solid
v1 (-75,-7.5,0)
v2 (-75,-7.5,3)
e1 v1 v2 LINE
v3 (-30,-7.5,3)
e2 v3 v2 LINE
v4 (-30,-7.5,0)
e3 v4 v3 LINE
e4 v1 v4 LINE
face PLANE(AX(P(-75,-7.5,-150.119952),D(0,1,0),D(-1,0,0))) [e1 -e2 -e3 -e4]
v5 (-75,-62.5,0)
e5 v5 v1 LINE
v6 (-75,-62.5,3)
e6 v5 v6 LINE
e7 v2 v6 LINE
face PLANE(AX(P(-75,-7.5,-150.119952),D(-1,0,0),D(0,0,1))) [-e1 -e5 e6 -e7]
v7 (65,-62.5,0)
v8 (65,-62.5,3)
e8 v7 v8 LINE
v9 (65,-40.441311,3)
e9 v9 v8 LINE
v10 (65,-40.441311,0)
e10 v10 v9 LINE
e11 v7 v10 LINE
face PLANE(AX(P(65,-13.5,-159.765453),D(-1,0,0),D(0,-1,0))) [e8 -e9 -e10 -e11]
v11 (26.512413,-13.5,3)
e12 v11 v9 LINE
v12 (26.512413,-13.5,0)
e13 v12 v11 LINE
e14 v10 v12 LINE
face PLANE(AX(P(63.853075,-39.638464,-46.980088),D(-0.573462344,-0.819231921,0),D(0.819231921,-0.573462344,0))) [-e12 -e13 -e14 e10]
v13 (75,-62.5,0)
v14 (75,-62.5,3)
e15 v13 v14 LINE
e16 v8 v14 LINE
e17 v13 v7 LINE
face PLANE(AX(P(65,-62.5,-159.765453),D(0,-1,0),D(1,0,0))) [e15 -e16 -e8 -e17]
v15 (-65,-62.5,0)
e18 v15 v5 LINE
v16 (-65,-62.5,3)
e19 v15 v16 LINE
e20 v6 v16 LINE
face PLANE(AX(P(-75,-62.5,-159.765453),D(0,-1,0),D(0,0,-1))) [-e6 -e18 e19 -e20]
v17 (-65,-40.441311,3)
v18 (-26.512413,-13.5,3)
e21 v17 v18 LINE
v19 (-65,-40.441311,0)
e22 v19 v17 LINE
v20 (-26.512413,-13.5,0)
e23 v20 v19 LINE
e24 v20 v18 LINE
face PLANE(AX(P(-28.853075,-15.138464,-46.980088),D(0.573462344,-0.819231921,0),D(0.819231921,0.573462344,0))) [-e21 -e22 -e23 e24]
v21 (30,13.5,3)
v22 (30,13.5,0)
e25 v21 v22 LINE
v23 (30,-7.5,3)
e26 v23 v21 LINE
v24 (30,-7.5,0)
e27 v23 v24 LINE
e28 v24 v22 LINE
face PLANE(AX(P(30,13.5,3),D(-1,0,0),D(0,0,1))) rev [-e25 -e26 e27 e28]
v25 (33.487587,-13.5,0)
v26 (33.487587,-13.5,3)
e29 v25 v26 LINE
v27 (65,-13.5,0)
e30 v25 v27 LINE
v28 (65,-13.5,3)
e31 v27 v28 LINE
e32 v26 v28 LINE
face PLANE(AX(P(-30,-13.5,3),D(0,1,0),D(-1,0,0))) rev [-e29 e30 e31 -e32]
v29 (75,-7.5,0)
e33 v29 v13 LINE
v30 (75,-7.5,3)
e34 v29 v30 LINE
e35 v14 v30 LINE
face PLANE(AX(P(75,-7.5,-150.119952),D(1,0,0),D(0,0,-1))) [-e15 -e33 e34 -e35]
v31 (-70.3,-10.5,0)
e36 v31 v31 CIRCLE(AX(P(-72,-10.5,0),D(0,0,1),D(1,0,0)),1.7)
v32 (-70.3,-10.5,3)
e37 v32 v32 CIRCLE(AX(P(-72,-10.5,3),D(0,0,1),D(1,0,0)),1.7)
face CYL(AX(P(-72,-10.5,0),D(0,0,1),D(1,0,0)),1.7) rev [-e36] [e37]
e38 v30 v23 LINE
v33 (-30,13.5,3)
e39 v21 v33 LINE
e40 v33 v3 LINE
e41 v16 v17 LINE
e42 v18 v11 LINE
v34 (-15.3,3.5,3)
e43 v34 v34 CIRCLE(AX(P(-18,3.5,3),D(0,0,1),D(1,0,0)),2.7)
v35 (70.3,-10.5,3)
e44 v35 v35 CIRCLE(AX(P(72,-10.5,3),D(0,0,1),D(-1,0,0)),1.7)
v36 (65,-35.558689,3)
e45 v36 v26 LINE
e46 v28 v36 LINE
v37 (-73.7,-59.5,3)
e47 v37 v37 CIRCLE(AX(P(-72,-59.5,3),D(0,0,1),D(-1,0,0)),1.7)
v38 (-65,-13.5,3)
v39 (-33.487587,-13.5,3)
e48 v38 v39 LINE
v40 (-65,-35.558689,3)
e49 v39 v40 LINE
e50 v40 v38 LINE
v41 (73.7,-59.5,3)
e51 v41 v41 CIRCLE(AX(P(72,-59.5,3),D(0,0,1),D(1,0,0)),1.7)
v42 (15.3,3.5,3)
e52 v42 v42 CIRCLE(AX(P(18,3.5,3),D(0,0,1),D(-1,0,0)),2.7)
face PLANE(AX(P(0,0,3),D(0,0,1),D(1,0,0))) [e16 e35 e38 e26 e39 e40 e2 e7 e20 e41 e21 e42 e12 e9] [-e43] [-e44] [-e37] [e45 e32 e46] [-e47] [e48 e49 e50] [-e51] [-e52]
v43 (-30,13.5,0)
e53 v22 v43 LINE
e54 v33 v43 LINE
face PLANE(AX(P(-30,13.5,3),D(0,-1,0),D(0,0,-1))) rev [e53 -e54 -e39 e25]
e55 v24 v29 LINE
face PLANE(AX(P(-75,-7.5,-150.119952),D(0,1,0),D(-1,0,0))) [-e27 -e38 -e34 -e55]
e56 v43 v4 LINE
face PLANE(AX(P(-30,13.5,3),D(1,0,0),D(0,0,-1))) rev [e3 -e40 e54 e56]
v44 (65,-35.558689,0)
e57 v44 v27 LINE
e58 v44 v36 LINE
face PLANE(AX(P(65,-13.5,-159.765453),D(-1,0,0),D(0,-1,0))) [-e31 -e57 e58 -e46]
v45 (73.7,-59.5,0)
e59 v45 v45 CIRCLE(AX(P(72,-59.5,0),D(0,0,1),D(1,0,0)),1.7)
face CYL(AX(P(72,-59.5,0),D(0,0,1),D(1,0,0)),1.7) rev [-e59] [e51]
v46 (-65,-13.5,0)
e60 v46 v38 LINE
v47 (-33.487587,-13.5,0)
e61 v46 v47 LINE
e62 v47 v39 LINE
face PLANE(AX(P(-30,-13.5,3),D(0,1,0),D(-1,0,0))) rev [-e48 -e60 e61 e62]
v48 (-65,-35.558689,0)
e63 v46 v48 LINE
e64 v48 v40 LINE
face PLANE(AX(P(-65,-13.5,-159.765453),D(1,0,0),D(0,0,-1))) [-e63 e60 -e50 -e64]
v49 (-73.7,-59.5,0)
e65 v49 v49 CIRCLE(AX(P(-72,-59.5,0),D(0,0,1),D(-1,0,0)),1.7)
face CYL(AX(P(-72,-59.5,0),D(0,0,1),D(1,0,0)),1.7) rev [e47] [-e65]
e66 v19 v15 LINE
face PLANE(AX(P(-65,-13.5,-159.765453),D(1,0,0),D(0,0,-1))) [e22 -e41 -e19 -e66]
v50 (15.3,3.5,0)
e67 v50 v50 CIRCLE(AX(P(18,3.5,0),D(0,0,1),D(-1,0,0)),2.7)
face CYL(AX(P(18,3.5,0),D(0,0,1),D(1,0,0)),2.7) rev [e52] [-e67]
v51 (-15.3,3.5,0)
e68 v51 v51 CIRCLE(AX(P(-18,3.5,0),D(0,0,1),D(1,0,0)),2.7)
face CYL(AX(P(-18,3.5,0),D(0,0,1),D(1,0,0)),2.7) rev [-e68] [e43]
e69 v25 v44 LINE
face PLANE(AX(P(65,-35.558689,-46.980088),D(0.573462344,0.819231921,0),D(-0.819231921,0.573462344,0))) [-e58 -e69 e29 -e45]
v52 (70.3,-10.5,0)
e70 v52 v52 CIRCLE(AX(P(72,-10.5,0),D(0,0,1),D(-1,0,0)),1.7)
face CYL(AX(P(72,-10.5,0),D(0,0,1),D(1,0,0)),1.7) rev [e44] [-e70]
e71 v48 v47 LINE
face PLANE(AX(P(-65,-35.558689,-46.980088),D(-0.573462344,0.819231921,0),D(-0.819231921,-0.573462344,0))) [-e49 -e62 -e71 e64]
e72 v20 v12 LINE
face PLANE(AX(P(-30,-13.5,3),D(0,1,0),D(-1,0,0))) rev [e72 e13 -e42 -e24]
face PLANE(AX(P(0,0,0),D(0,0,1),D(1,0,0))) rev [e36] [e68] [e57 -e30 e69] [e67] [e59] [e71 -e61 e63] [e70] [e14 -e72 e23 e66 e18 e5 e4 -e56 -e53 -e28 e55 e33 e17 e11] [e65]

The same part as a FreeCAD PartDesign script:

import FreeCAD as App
import Part
import Sketcher
from FreeCAD import Vector

doc = App.newDocument("Part")
body = doc.addObject("PartDesign::Body", "Body")

sketch1 = body.newObject("Sketcher::SketchObject", "Sketch")
sketch1.AttachmentSupport = (doc.getObject("XY_Plane"), [""])
sketch1.MapMode = "FlatFace"
sketch1.addGeometry([
    Part.LineSegment(Vector(-30, 13.5, 0), Vector(-30, -13.5, 0)),
    Part.LineSegment(Vector(-30, -13.5, 0), Vector(30, -13.5, 0)),
    Part.LineSegment(Vector(30, -13.5, 0), Vector(30, 13.5, 0)),
    Part.LineSegment(Vector(30, 13.5, 0), Vector(-30, 13.5, 0)),
], False)
sketch1.addConstraint([
    Sketcher.Constraint("Coincident", 0, 2, 1, 1),
    Sketcher.Constraint("Coincident", 1, 2, 2, 1),
    Sketcher.Constraint("Coincident", 2, 2, 3, 1),
    Sketcher.Constraint("Coincident", 3, 2, 0, 1),
    Sketcher.Constraint("Vertical", 0),
    Sketcher.Constraint("Horizontal", 1),
    Sketcher.Constraint("Vertical", 2),
    Sketcher.Constraint("Horizontal", 3),
    Sketcher.Constraint("Symmetric", 0, 2, 2, 2, -1, 1),
    Sketcher.Constraint("DistanceX", 1, 1, 1, 2, 60.0),
    Sketcher.Constraint("DistanceY", 0, 2, 0, 1, 27.0),
])
pad1 = body.newObject("PartDesign::Pad", "Pad")
pad1.Profile = sketch1
pad1.Length = 3

sketch2 = body.newObject("Sketcher::SketchObject", "Sketch001")
sketch2.AttachmentSupport = (doc.getObject("XY_Plane"), [""])
sketch2.MapMode = "FlatFace"
sketch2.AttachmentOffset = App.Placement(Vector(0, 0, 3), App.Rotation())
sketch2.addGeometry([
    Part.LineSegment(Vector(-75, -7.5, 0), Vector(-75, -13.5, 0)),
    Part.LineSegment(Vector(-75, -13.5, 0), Vector(75, -13.5, 0)),
    Part.LineSegment(Vector(75, -13.5, 0), Vector(75, -7.5, 0)),
    Part.LineSegment(Vector(75, -7.5, 0), Vector(-75, -7.5, 0)),
], False)
sketch2.addConstraint([
    Sketcher.Constraint("Coincident", 0, 2, 1, 1),
    Sketcher.Constraint("Coincident", 1, 2, 2, 1),
    Sketcher.Constraint("Coincident", 2, 2, 3, 1),
    Sketcher.Constraint("Coincident", 3, 2, 0, 1),
    Sketcher.Constraint("Vertical", 0),
    Sketcher.Constraint("Horizontal", 1),
    Sketcher.Constraint("Vertical", 2),
    Sketcher.Constraint("Horizontal", 3),
    Sketcher.Constraint("DistanceX", 1, 1, 1, 2, 150.0),
    Sketcher.Constraint("DistanceY", 0, 2, 0, 1, 6.0),
    Sketcher.Constraint("DistanceX", 0, 2, -1, 1, 75.0),
    Sketcher.Constraint("DistanceY", 0, 2, -1, 1, 13.5),
])
pad2 = body.newObject("PartDesign::Pad", "Pad001")
pad2.Profile = sketch2
pad2.Length = 3
pad2.Reversed = True

sketch3 = body.newObject("Sketcher::SketchObject", "Sketch002")
sketch3.AttachmentSupport = (doc.getObject("XY_Plane"), [""])
sketch3.MapMode = "FlatFace"
sketch3.AttachmentOffset = App.Placement(Vector(0, 0, 3), App.Rotation())
sketch3.addGeometry([
    Part.LineSegment(Vector(65, -62.5, 0), Vector(75, -62.5, 0)),
    Part.LineSegment(Vector(75, -62.5, 0), Vector(75, -7.5, 0)),
    Part.LineSegment(Vector(75, -7.5, 0), Vector(-75, -7.5, 0)),
    Part.LineSegment(Vector(-75, -7.5, 0), Vector(-75, -62.5, 0)),
    Part.LineSegment(Vector(-75, -62.5, 0), Vector(-65, -62.5, 0)),
    Part.LineSegment(Vector(-65, -62.5, 0), Vector(-65, -13.5, 0)),
    Part.LineSegment(Vector(-65, -13.5, 0), Vector(65, -13.5, 0)),
    Part.LineSegment(Vector(65, -13.5, 0), Vector(65, -62.5, 0)),
], False)
sketch3.addConstraint([
    Sketcher.Constraint("Coincident", 0, 2, 1, 1),
    Sketcher.Constraint("Coincident", 1, 2, 2, 1),
    Sketcher.Constraint("Coincident", 2, 2, 3, 1),
    Sketcher.Constraint("Coincident", 3, 2, 4, 1),
    Sketcher.Constraint("Coincident", 4, 2, 5, 1),
    Sketcher.Constraint("Coincident", 5, 2, 6, 1),
    Sketcher.Constraint("Coincident", 6, 2, 7, 1),
    Sketcher.Constraint("Coincident", 7, 2, 0, 1),
    Sketcher.Constraint("Horizontal", 0),
    Sketcher.Constraint("Vertical", 1),
    Sketcher.Constraint("Horizontal", 2),
    Sketcher.Constraint("Vertical", 3),
    Sketcher.Constraint("Horizontal", 4),
    Sketcher.Constraint("Vertical", 5),
    Sketcher.Constraint("Horizontal", 6),
    Sketcher.Constraint("Vertical", 7),
    Sketcher.Constraint("Symmetric", 0, 2, 3, 2, -2),
    Sketcher.Constraint("Equal", 0, 4),
    Sketcher.Constraint("DistanceX", 0, 1, 0, 2, 10.0),
    Sketcher.Constraint("DistanceX", 2, 2, 2, 1, 150.0),
    Sketcher.Constraint("DistanceY", 1, 1, 1, 2, 55.0),
    Sketcher.Constraint("DistanceY", 5, 1, 5, 2, 49.0),
    Sketcher.Constraint("DistanceY", 0, 2, -1, 1, 62.5),
])
pad3 = body.newObject("PartDesign::Pad", "Pad002")
pad3.Profile = sketch3
pad3.Length = 3
pad3.Reversed = True

sketch4 = body.newObject("Sketcher::SketchObject", "Sketch003")
sketch4.AttachmentSupport = (doc.getObject("XY_Plane"), [""])
sketch4.MapMode = "FlatFace"
sketch4.AttachmentOffset = App.Placement(Vector(0, 0, 3), App.Rotation())
sketch4.addGeometry([
    Part.Circle(Vector(-72, -10.5, 0), Vector(0, 0, 1), 1.7),
    Part.Circle(Vector(-72, -59.5, 0), Vector(0, 0, 1), 1.7),
    Part.Circle(Vector(72, -59.5, 0), Vector(0, 0, 1), 1.7),
    Part.Circle(Vector(72, -10.5, 0), Vector(0, 0, 1), 1.7),
], False)
sketch4.addConstraint([
    Sketcher.Constraint("Equal", 0, 1),
    Sketcher.Constraint("Equal", 1, 2),
    Sketcher.Constraint("Equal", 2, 3),
    Sketcher.Constraint("Symmetric", 1, 3, 2, 3, -2),
    Sketcher.Constraint("Symmetric", 0, 3, 3, 3, -2),
    Sketcher.Constraint("Vertical", 0, 3, 1, 3),
    Sketcher.Constraint("Diameter", 0, 3.4),
    Sketcher.Constraint("DistanceX", 0, 3, -1, 1, 72.0),
    Sketcher.Constraint("DistanceY", 1, 3, 0, 3, 49.0),
    Sketcher.Constraint("DistanceY", 0, 3, -1, 1, 10.5),
])
pocket1 = body.newObject("PartDesign::Pocket", "Pocket")
pocket1.Profile = sketch4
pocket1.Type = "ThroughAll"

sketch5 = body.newObject("Sketcher::SketchObject", "Sketch004")
sketch5.AttachmentSupport = (doc.getObject("XY_Plane"), [""])
sketch5.MapMode = "FlatFace"
sketch5.AttachmentOffset = App.Placement(Vector(0, 0, 3), App.Rotation())
sketch5.addGeometry([
    Part.LineSegment(Vector(-63.853075, -39.638464, 0), Vector(-26.512413, -13.5, 0)),
    Part.LineSegment(Vector(-26.512413, -13.5, 0), Vector(-33.487587, -13.5, 0)),
    Part.LineSegment(Vector(-33.487587, -13.5, 0), Vector(-65, -35.558689, 0)),
    Part.LineSegment(Vector(-65, -35.558689, 0), Vector(-65, -40.441311, 0)),
    Part.LineSegment(Vector(-65, -40.441311, 0), Vector(-63.853075, -39.638464, 0)),
    Part.LineSegment(Vector(33.487587, -13.5, 0), Vector(26.512413, -13.5, 0)),
    Part.LineSegment(Vector(26.512413, -13.5, 0), Vector(63.853075, -39.638464, 0)),
    Part.LineSegment(Vector(63.853075, -39.638464, 0), Vector(65, -40.441311, 0)),
    Part.LineSegment(Vector(65, -40.441311, 0), Vector(65, -35.558689, 0)),
    Part.LineSegment(Vector(65, -35.558689, 0), Vector(33.487587, -13.5, 0)),
], False)
sketch5.addConstraint([
    Sketcher.Constraint("Coincident", 0, 2, 1, 1),
    Sketcher.Constraint("Coincident", 1, 2, 2, 1),
    Sketcher.Constraint("Coincident", 2, 2, 3, 1),
    Sketcher.Constraint("Coincident", 3, 2, 4, 1),
    Sketcher.Constraint("Coincident", 4, 2, 0, 1),
    Sketcher.Constraint("Coincident", 5, 2, 6, 1),
    Sketcher.Constraint("Coincident", 6, 2, 7, 1),
    Sketcher.Constraint("Coincident", 7, 2, 8, 1),
    Sketcher.Constraint("Coincident", 8, 2, 9, 1),
    Sketcher.Constraint("Coincident", 9, 2, 5, 1),
    Sketcher.Constraint("Horizontal", 1),
    Sketcher.Constraint("Vertical", 3),
    Sketcher.Constraint("Horizontal", 5),
    Sketcher.Constraint("Vertical", 8),
    Sketcher.Constraint("Symmetric", 0, 2, 5, 2, -2),
    Sketcher.Constraint("Symmetric", 4, 2, 6, 2, -2),
    Sketcher.Constraint("Symmetric", 3, 2, 7, 2, -2),
    Sketcher.Constraint("Parallel", 0, 2),
    Sketcher.Constraint("Parallel", 2, 4),
    Sketcher.Constraint("Parallel", 7, 9),
    Sketcher.Constraint("Horizontal", 2, 2, 8, 2),
    Sketcher.Constraint("DistanceX", 2, 2, -1, 1, 65.0),
    Sketcher.Constraint("DistanceX", 1, 2, 5, 2, 60.0),
    Sketcher.Constraint("Distance", 4, 1.4),
    Sketcher.Constraint("DistanceY", 0, 2, -1, 1, 13.5),
    Sketcher.Constraint("Distance", 2, 38.465802),
    Sketcher.Constraint("DistanceX", 1, 2, 1, 1, 6.975175),
])
pad4 = body.newObject("PartDesign::Pad", "Pad003")
pad4.Profile = sketch5
pad4.Length = 3
pad4.Reversed = True

sketch6 = body.newObject("Sketcher::SketchObject", "Sketch005")
sketch6.AttachmentSupport = (doc.getObject("XY_Plane"), [""])
sketch6.MapMode = "FlatFace"
sketch6.AttachmentOffset = App.Placement(Vector(0, 0, 3), App.Rotation())
sketch6.addGeometry([
    Part.Circle(Vector(-18, 3.5, 0), Vector(0, 0, 1), 2.7),
    Part.Circle(Vector(18, 3.5, 0), Vector(0, 0, 1), 2.7),
], False)
sketch6.addConstraint([
    Sketcher.Constraint("Equal", 0, 1),
    Sketcher.Constraint("Symmetric", 0, 3, 1, 3, -2),
    Sketcher.Constraint("Diameter", 0, 5.4),
    Sketcher.Constraint("DistanceX", 0, 3, -1, 1, 18.0),
    Sketcher.Constraint("DistanceY", -1, 1, 0, 3, 3.5),
])
pocket2 = body.newObject("PartDesign::Pocket", "Pocket001")
pocket2.Profile = sketch6
pocket2.Type = "ThroughAll"

doc.recompute()
